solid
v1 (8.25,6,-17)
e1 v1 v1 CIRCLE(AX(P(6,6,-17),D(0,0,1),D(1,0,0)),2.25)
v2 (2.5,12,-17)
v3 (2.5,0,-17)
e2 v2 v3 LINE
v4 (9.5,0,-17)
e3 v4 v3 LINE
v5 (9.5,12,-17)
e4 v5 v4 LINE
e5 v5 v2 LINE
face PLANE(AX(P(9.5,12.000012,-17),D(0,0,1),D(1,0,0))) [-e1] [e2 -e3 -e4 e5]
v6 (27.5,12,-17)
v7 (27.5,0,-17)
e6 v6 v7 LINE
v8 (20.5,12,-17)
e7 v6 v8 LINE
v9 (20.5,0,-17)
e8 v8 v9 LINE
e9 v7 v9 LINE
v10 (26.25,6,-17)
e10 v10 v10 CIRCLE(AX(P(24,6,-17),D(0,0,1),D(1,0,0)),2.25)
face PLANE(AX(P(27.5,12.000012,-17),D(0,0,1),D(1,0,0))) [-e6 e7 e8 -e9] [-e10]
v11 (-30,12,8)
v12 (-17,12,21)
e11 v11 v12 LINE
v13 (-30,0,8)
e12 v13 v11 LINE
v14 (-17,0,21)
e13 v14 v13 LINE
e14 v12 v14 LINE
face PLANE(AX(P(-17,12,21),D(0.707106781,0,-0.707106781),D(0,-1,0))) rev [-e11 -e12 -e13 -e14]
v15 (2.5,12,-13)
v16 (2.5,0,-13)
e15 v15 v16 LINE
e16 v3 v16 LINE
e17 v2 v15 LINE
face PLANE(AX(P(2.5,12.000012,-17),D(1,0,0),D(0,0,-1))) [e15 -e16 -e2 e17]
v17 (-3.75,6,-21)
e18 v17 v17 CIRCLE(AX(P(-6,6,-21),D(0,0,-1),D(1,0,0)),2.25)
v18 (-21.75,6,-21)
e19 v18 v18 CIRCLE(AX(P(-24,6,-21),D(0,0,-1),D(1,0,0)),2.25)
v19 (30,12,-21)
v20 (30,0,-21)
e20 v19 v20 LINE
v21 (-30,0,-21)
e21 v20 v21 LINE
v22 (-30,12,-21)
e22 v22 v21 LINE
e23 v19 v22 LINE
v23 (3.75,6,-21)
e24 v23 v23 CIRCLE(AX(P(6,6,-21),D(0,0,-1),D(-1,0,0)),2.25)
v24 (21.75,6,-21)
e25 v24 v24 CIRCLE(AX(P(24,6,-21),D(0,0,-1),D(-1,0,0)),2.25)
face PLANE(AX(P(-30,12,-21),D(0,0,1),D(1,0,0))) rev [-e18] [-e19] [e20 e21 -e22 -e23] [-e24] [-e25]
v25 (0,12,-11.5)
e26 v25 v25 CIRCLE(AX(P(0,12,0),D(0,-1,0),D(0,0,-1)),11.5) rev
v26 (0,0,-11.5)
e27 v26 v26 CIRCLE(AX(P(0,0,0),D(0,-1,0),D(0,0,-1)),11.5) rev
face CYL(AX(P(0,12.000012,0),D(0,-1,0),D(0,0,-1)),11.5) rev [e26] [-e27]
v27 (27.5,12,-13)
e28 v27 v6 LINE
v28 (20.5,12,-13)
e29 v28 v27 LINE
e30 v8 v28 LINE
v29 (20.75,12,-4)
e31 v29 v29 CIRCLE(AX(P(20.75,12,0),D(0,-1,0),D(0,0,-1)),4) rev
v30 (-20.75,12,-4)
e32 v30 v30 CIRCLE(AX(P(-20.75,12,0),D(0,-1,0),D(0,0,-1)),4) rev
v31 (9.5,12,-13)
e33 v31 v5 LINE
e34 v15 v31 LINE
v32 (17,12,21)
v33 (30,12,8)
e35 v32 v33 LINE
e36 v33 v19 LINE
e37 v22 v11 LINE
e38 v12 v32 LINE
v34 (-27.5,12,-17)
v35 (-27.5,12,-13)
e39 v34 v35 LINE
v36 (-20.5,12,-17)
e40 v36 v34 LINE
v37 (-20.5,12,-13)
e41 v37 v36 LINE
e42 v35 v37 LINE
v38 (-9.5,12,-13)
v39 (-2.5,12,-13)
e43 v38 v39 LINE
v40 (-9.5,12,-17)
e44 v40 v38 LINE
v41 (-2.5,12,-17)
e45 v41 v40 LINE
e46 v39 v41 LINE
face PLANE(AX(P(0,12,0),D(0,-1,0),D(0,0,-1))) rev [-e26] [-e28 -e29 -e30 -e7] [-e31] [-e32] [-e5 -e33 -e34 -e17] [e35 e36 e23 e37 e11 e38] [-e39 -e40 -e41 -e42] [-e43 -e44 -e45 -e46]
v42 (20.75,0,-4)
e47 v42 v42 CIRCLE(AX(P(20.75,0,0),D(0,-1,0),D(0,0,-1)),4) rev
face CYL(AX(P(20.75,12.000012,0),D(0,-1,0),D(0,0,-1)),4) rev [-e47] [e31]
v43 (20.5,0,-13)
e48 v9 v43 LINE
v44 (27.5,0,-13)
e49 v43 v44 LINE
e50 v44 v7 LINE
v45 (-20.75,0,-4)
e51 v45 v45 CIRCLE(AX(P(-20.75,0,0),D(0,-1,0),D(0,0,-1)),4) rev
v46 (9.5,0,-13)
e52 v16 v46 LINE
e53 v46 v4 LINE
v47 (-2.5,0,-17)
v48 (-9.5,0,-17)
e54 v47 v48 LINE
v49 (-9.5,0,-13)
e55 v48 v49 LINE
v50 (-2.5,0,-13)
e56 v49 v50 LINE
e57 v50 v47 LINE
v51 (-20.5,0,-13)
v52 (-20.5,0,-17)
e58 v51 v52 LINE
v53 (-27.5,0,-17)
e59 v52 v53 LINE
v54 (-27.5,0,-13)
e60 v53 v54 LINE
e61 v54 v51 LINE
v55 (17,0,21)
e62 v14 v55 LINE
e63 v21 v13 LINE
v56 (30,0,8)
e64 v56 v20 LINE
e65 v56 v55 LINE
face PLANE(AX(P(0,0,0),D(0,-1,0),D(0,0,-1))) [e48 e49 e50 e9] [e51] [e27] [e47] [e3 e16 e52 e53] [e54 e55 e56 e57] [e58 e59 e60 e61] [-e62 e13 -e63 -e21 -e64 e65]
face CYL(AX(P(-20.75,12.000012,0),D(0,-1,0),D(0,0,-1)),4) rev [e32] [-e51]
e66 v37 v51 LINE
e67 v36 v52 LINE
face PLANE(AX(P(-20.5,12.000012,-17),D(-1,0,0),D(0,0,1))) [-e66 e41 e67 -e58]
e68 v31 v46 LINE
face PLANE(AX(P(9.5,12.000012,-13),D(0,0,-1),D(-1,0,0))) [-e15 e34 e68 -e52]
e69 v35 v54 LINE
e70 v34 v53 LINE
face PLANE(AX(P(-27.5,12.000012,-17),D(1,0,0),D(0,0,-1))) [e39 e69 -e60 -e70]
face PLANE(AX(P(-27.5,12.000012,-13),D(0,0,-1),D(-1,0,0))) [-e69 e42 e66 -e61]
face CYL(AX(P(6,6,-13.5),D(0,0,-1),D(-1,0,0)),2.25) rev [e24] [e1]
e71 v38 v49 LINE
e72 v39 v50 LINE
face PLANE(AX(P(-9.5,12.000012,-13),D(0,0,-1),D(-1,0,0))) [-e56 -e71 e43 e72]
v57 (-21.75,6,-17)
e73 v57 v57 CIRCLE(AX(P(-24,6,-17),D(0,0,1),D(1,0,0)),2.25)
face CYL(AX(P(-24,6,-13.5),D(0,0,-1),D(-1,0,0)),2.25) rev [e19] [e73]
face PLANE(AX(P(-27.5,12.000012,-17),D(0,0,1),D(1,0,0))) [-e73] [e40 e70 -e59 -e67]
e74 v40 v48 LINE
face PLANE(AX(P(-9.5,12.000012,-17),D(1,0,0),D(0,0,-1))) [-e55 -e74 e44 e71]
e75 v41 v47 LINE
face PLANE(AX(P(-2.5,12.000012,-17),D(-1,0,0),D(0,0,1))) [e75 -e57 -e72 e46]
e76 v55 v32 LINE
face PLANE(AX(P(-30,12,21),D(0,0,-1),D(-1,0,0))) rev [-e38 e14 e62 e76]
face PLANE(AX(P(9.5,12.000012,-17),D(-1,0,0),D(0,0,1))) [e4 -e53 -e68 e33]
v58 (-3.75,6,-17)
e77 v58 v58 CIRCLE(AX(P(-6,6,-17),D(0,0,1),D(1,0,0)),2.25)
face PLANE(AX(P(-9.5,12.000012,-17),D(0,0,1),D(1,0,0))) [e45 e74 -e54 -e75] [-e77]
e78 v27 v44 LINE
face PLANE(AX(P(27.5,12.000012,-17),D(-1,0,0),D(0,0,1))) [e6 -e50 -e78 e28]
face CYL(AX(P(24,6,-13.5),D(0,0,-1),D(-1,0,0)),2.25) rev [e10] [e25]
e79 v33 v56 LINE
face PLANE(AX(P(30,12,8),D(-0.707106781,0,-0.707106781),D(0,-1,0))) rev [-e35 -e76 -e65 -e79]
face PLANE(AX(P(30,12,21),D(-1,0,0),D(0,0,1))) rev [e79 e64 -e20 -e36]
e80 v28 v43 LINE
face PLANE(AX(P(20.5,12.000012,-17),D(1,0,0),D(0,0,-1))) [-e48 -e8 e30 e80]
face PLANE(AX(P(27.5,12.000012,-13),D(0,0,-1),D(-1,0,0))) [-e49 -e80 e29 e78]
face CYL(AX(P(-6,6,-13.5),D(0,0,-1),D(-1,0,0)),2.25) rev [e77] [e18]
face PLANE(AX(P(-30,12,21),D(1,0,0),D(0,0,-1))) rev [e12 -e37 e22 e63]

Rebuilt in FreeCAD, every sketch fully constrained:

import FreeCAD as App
import Part
import Sketcher
from FreeCAD import Vector
Q = App.Units.Quantity


def edges_at(feature, points):
    """Names of the edges that pass closest to the given points."""
    edges = feature.Shape.Edges
    near = lambda p: min(range(len(edges)), key=lambda i: edges[i].distToShape(Part.Vertex(*p))[0])
    return sorted({f"Edge{near(p) + 1}" for p in points})


def add_polygon(sketch, points):
    """Adds a closed chain of lines whose ends are joined by coincident constraints."""
    first, n = sketch.GeometryCount, len(points)
    for a, b in zip(points, points[1:] + points[:1]):
        sketch.addGeometry(Part.LineSegment(App.Vector(*a, 0), App.Vector(*b, 0)), False)
    for i in range(n):
        sketch.addConstraint(Sketcher.Constraint("Coincident", first + i, 2, first + (i + 1) % n, 1))

doc = App.newDocument("Part")
body = doc.addObject("PartDesign::Body", "Body")

# Sketch on XZ plane
sketch1 = body.newObject("Sketcher::SketchObject", "Sketch")
sketch1.AttachmentSupport = (doc.getObject("XZ_Plane"), [""])
sketch1.MapMode = "FlatFace"
add_polygon(sketch1, [(-30, -21), (-30, 21), (30, 21), (30, -21)])  # lines 0-3
sketch1.addConstraint([
    Sketcher.Constraint("Vertical", 0),
    Sketcher.Constraint("Horizontal", 1),
    Sketcher.Constraint("Vertical", 2),
    Sketcher.Constraint("Horizontal", 3),
    Sketcher.Constraint("Symmetric", 0, 2, 2, 2, -1, 1),
    Sketcher.Constraint("DistanceX", 1, 1, 1, 2, Q("60 mm")),
    Sketcher.Constraint("DistanceY", 0, 1, 0, 2, Q("42 mm")),
])
pad1 = body.newObject("PartDesign::Pad", "Pad")
pad1.Profile = sketch1
pad1.Length = 12
pad1.Reversed = True

# Sketch on XZ plane
sketch2 = body.newObject("Sketcher::SketchObject", "Sketch001")
sketch2.AttachmentSupport = (doc.getObject("XZ_Plane"), [""])
sketch2.MapMode = "FlatFace"
sketch2.AttachmentOffset = App.Placement(Vector(0, 0, -12), App.Rotation())
sketch2.addGeometry(Part.Circle(Vector(0, 0, 0), Vector(0, 0, 1), 11.5), False)
sketch2.addConstraint([
    Sketcher.Constraint("Coincident", 0, 3, -1, 1),
    Sketcher.Constraint("Diameter", 0, Q("23 mm")),
])
pocket1 = body.newObject("PartDesign::Pocket", "Pocket")
pocket1.Profile = sketch2
pocket1.Type = "UpToFirst"
pocket1.Reversed = True

# Sketch on XZ plane
sketch3 = body.newObject("Sketcher::SketchObject", "Sketch002")
sketch3.AttachmentSupport = (doc.getObject("XZ_Plane"), [""])
sketch3.MapMode = "FlatFace"
sketch3.AttachmentOffset = App.Placement(Vector(0, 0, -12), App.Rotation())
sketch3.addGeometry(Part.Circle(Vector(20.75, 0, 0), Vector(0, 0, 1), 4), False)
sketch3.addConstraint([
    Sketcher.Constraint("PointOnObject", 0, 3, -1),
    Sketcher.Constraint("Diameter", 0, Q("8 mm")),
    Sketcher.Constraint("DistanceX", -1, 1, 0, 3, Q("20.75 mm")),
])
pocket2 = body.newObject("PartDesign::Pocket", "Pocket001")
pocket2.Profile = sketch3
pocket2.Type = "UpToFirst"
pocket2.Reversed = True

# Sketch on XZ plane
sketch4 = body.newObject("Sketcher::SketchObject", "Sketch003")
sketch4.AttachmentSupport = (doc.getObject("XZ_Plane"), [""])
sketch4.MapMode = "FlatFace"
sketch4.AttachmentOffset = App.Placement(Vector(0, 0, -12), App.Rotation())
sketch4.addGeometry(Part.Circle(Vector(-20.75, 0, 0), Vector(0, 0, 1), 4), False)
sketch4.addConstraint([
    Sketcher.Constraint("PointOnObject", 0, 3, -1),
    Sketcher.Constraint("Diameter", 0, Q("8 mm")),
    Sketcher.Constraint("DistanceX", 0, 3, -1, 1, Q("20.75 mm")),
])
pocket3 = body.newObject("PartDesign::Pocket", "Pocket002")
pocket3.Profile = sketch4
pocket3.Type = "UpToFirst"
pocket3.Reversed = True

# Sketch on XZ plane
sketch5 = body.newObject("Sketcher::SketchObject", "Sketch004")
sketch5.AttachmentSupport = (doc.getObject("XZ_Plane"), [""])
sketch5.MapMode = "FlatFace"
sketch5.AttachmentOffset = App.Placement(Vector(0, 0, -12), App.Rotation())
sketch5.addGeometry([
    Part.Circle(Vector(0, 0, 0), Vector(0, 0, 1), 11.5),
    Part.Circle(Vector(20.75, 0, 0), Vector(0, 0, 1), 4),
    Part.Circle(Vector(-20.75, 0, 0), Vector(0, 0, 1), 4),
], False)
sketch5.addConstraint([
    Sketcher.Constraint("Coincident", 0, 3, -1, 1),
    Sketcher.Constraint("Equal", 1, 2),
    Sketcher.Constraint("Symmetric", 1, 3, 2, 3, -1, 1),
    Sketcher.Constraint("PointOnObject", 1, 3, -1),
    Sketcher.Constraint("Diameter", 0, Q("23 mm")),
    Sketcher.Constraint("Diameter", 1, Q("8 mm")),
    Sketcher.Constraint("DistanceX", 2, 3, 1, 3, Q("41.5 mm")),
])
pocket4 = body.newObject("PartDesign::Pocket", "Pocket003")
pocket4.Profile = sketch5
pocket4.Length = 1
doc.recompute()

chamfer = body.newObject("PartDesign::Chamfer", "Chamfer")
chamfer.Base = (pocket4, edges_at(pocket4, [(30, 6, 21), (-30, 6, 21)]))
chamfer.Size = 13

# Sketch on XZ plane
sketch6 = body.newObject("Sketcher::SketchObject", "Sketch005")
sketch6.AttachmentSupport = (doc.getObject("XZ_Plane"), [""])
sketch6.MapMode = "FlatFace"
sketch6.AttachmentOffset = App.Placement(Vector(0, 0, -12), App.Rotation())
add_polygon(sketch6, [(20.5, -17), (20.5, -13), (27.5, -13), (27.5, -17)])  # lines 0-3
sketch6.addConstraint([
    Sketcher.Constraint("Vertical", 0),
    Sketcher.Constraint("Horizontal", 1),
    Sketcher.Constraint("Vertical", 2),
    Sketcher.Constraint("Horizontal", 3),
    Sketcher.Constraint("DistanceX", 1, 1, 1, 2, Q("7 mm")),
    Sketcher.Constraint("DistanceY", 0, 1, 0, 2, Q("4 mm")),
    Sketcher.Constraint("DistanceY", 0, 2, -1, 1, Q("13 mm")),
    Sketcher.Constraint("DistanceX", -1, 1, 0, 2, Q("20.5 mm")),
])
pocket5 = body.newObject("PartDesign::Pocket", "Pocket004")
pocket5.Profile = sketch6
pocket5.Type = "UpToFirst"
pocket5.Reversed = True

# Sketch on XZ plane
sketch7 = body.newObject("Sketcher::SketchObject", "Sketch006")
sketch7.AttachmentSupport = (doc.getObject("XZ_Plane"), [""])
sketch7.MapMode = "FlatFace"
sketch7.AttachmentOffset = App.Placement(Vector(0, 0, -12), App.Rotation())
add_polygon(sketch7, [(2.5, -17), (2.5, -13), (9.5, -13), (9.5, -17)])  # lines 0-3
sketch7.addConstraint([
    Sketcher.Constraint("Vertical", 0),
    Sketcher.Constraint("Horizontal", 1),
    Sketcher.Constraint("Vertical", 2),
    Sketcher.Constraint("Horizontal", 3),
    Sketcher.Constraint("DistanceX", 1, 1, 1, 2, Q("7 mm")),
    Sketcher.Constraint("DistanceY", 0, 1, 0, 2, Q("4 mm")),
    Sketcher.Constraint("DistanceY", 0, 2, -1, 1, Q("13 mm")),
    Sketcher.Constraint("DistanceX", -1, 1, 0, 2, Q("2.5 mm")),
])
pocket6 = body.newObject("PartDesign::Pocket", "Pocket005")
pocket6.Profile = sketch7
pocket6.Type = "UpToFirst"
pocket6.Reversed = True

# Sketch on XZ plane
sketch8 = body.newObject("Sketcher::SketchObject", "Sketch007")
sketch8.AttachmentSupport = (doc.getObject("XZ_Plane"), [""])
sketch8.MapMode = "FlatFace"
sketch8.AttachmentOffset = App.Placement(Vector(0, 0, -12), App.Rotation())
add_polygon(sketch8, [(-9.5, -17), (-9.5, -13), (-2.5, -13), (-2.5, -17)])  # lines 0-3
sketch8.addConstraint([
    Sketcher.Constraint("Vertical", 0),
    Sketcher.Constraint("Horizontal", 1),
    Sketcher.Constraint("Vertical", 2),
    Sketcher.Constraint("Horizontal", 3),
    Sketcher.Constraint("DistanceX", 1, 1, 1, 2, Q("7 mm")),
    Sketcher.Constraint("DistanceY", 0, 1, 0, 2, Q("4 mm")),
    Sketcher.Constraint("DistanceY", 0, 2, -1, 1, Q("13 mm")),
    Sketcher.Constraint("DistanceX", 0, 2, -1, 1, Q("9.5 mm")),
])
pocket7 = body.newObject("PartDesign::Pocket", "Pocket006")
pocket7.Profile = sketch8
pocket7.Type = "UpToFirst"
pocket7.Reversed = True

# Sketch on XZ plane
sketch9 = body.newObject("Sketcher::SketchObject", "Sketch008")
sketch9.AttachmentSupport = (doc.getObject("XZ_Plane"), [""])
sketch9.MapMode = "FlatFace"
sketch9.AttachmentOffset = App.Placement(Vector(0, 0, -12), App.Rotation())
add_polygon(sketch9, [(-27.5, -17), (-27.5, -13), (-20.5, -13), (-20.5, -17)])  # lines 0-3
sketch9.addConstraint([
    Sketcher.Constraint("Vertical", 0),
    Sketcher.Constraint("Horizontal", 1),
    Sketcher.Constraint("Vertical", 2),
    Sketcher.Constraint("Horizontal", 3),
    Sketcher.Constraint("DistanceX", 1, 1, 1, 2, Q("7 mm")),
    Sketcher.Constraint("DistanceY", 0, 1, 0, 2, Q("4 mm")),
    Sketcher.Constraint("DistanceY", 0, 2, -1, 1, Q("13 mm")),
    Sketcher.Constraint("DistanceX", 0, 2, -1, 1, Q("27.5 mm")),
])
pocket8 = body.newObject("PartDesign::Pocket", "Pocket007")
pocket8.Profile = sketch9
pocket8.Type = "UpToFirst"
pocket8.Reversed = True

# Sketch on XZ plane
sketch10 = body.newObject("Sketcher::SketchObject", "Sketch009")
sketch10.AttachmentSupport = (doc.getObject("XZ_Plane"), [""])
sketch10.MapMode = "FlatFace"
sketch10.AttachmentOffset = App.Placement(Vector(0, 0, -12), App.Rotation())
add_polygon(sketch10, [(20.5, -17), (20.5, -13), (27.5, -13), (27.5, -17)])  # lines 0-3
add_polygon(sketch10, [(2.5, -17), (2.5, -13), (9.5, -13), (9.5, -17)])  # lines 4-7
add_polygon(sketch10, [(-9.5, -17), (-9.5, -13), (-2.5, -13), (-2.5, -17)])  # lines 8-11
add_polygon(sketch10, [(-27.5, -17), (-27.5, -13), (-20.5, -13), (-20.5, -17)])  # lines 12-15
sketch10.addConstraint([
    Sketcher.Constraint("Vertical", 0),
    Sketcher.Constraint("Horizontal", 1),
    Sketcher.Constraint("Vertical", 2),
    Sketcher.Constraint("Horizontal", 3),
    Sketcher.Constraint("Vertical", 4),
    Sketcher.Constraint("Horizontal", 5),
    Sketcher.Constraint("Vertical", 6),
    Sketcher.Constraint("Horizontal", 7),
    Sketcher.Constraint("Vertical", 8),
    Sketcher.Constraint("Horizontal", 9),
    Sketcher.Constraint("Vertical", 10),
    Sketcher.Constraint("Horizontal", 11),
    Sketcher.Constraint("Vertical", 12),
    Sketcher.Constraint("Horizontal", 13),
    Sketcher.Constraint("Vertical", 14),
    Sketcher.Constraint("Horizontal", 15),
    Sketcher.Constraint("Symmetric", 5, 2, 8, 2, -2),
    Sketcher.Constraint("Symmetric", 7, 2, 10, 2, -2),
    Sketcher.Constraint("Symmetric", 1, 2, 12, 2, -2),
    Sketcher.Constraint("Symmetric", 3, 2, 14, 2, -2),
    Sketcher.Constraint("Horizontal", 1, 2, 4, 2),
    Sketcher.Constraint("Horizontal", 3, 2, 6, 2),
    Sketcher.Constraint("Equal", 3, 5),
    Sketcher.Constraint("DistanceX", 1, 1, 1, 2, Q("7 mm")),
    Sketcher.Constraint("DistanceY", 0, 1, 0, 2, Q("4 mm")),
    Sketcher.Constraint("DistanceY", 0, 2, -1, 1, Q("13 mm")),
    Sketcher.Constraint("DistanceX", 4, 2, 0, 2, Q("18 mm")),
    Sketcher.Constraint("DistanceX", 8, 2, 4, 2, Q("12 mm")),
])
pocket9 = body.newObject("PartDesign::Pocket", "Pocket008")
pocket9.Profile = sketch10
pocket9.Length = 1

# Sketch on XY plane
sketch11 = body.newObject("Sketcher::SketchObject", "Sketch010")
sketch11.AttachmentSupport = (doc.getObject("XY_Plane"), [""])
sketch11.MapMode = "FlatFace"
sketch11.AttachmentOffset = App.Placement(Vector(0, 0, -21), App.Rotation())
sketch11.addGeometry([
    Part.Circle(Vector(24, 6, 0), Vector(0, 0, 1), 2.25),
    Part.Circle(Vector(6, 6, 0), Vector(0, 0, 1), 2.25),
    Part.Circle(Vector(-6, 6, 0), Vector(0, 0, 1), 2.25),
    Part.Circle(Vector(-24, 6, 0), Vector(0, 0, 1), 2.25),
], False)
sketch11.addConstraint([
    Sketcher.Constraint("Equal", 0, 1),
    Sketcher.Constraint("Equal", 1, 2),
    Sketcher.Constraint("Equal", 2, 3),
    Sketcher.Constraint("Symmetric", 1, 3, 2, 3, -2),
    Sketcher.Constraint("Symmetric", 0, 3, 3, 3, -2),
    Sketcher.Constraint("Horizontal", 0, 3, 1, 3),
    Sketcher.Constraint("Diameter", 0, Q("4.5 mm")),
    Sketcher.Constraint("DistanceX", -1, 1, 0, 3, Q("24 mm")),
    Sketcher.Constraint("DistanceY", -1, 1, 0, 3, Q("6 mm")),
    Sketcher.Constraint("DistanceX", -1, 1, 1, 3, Q("6 mm")),
])
pocket10 = body.newObject("PartDesign::Pocket", "Pocket009")
pocket10.Profile = sketch11
pocket10.Length = 7.5
pocket10.Reversed = True

doc.recompute()
